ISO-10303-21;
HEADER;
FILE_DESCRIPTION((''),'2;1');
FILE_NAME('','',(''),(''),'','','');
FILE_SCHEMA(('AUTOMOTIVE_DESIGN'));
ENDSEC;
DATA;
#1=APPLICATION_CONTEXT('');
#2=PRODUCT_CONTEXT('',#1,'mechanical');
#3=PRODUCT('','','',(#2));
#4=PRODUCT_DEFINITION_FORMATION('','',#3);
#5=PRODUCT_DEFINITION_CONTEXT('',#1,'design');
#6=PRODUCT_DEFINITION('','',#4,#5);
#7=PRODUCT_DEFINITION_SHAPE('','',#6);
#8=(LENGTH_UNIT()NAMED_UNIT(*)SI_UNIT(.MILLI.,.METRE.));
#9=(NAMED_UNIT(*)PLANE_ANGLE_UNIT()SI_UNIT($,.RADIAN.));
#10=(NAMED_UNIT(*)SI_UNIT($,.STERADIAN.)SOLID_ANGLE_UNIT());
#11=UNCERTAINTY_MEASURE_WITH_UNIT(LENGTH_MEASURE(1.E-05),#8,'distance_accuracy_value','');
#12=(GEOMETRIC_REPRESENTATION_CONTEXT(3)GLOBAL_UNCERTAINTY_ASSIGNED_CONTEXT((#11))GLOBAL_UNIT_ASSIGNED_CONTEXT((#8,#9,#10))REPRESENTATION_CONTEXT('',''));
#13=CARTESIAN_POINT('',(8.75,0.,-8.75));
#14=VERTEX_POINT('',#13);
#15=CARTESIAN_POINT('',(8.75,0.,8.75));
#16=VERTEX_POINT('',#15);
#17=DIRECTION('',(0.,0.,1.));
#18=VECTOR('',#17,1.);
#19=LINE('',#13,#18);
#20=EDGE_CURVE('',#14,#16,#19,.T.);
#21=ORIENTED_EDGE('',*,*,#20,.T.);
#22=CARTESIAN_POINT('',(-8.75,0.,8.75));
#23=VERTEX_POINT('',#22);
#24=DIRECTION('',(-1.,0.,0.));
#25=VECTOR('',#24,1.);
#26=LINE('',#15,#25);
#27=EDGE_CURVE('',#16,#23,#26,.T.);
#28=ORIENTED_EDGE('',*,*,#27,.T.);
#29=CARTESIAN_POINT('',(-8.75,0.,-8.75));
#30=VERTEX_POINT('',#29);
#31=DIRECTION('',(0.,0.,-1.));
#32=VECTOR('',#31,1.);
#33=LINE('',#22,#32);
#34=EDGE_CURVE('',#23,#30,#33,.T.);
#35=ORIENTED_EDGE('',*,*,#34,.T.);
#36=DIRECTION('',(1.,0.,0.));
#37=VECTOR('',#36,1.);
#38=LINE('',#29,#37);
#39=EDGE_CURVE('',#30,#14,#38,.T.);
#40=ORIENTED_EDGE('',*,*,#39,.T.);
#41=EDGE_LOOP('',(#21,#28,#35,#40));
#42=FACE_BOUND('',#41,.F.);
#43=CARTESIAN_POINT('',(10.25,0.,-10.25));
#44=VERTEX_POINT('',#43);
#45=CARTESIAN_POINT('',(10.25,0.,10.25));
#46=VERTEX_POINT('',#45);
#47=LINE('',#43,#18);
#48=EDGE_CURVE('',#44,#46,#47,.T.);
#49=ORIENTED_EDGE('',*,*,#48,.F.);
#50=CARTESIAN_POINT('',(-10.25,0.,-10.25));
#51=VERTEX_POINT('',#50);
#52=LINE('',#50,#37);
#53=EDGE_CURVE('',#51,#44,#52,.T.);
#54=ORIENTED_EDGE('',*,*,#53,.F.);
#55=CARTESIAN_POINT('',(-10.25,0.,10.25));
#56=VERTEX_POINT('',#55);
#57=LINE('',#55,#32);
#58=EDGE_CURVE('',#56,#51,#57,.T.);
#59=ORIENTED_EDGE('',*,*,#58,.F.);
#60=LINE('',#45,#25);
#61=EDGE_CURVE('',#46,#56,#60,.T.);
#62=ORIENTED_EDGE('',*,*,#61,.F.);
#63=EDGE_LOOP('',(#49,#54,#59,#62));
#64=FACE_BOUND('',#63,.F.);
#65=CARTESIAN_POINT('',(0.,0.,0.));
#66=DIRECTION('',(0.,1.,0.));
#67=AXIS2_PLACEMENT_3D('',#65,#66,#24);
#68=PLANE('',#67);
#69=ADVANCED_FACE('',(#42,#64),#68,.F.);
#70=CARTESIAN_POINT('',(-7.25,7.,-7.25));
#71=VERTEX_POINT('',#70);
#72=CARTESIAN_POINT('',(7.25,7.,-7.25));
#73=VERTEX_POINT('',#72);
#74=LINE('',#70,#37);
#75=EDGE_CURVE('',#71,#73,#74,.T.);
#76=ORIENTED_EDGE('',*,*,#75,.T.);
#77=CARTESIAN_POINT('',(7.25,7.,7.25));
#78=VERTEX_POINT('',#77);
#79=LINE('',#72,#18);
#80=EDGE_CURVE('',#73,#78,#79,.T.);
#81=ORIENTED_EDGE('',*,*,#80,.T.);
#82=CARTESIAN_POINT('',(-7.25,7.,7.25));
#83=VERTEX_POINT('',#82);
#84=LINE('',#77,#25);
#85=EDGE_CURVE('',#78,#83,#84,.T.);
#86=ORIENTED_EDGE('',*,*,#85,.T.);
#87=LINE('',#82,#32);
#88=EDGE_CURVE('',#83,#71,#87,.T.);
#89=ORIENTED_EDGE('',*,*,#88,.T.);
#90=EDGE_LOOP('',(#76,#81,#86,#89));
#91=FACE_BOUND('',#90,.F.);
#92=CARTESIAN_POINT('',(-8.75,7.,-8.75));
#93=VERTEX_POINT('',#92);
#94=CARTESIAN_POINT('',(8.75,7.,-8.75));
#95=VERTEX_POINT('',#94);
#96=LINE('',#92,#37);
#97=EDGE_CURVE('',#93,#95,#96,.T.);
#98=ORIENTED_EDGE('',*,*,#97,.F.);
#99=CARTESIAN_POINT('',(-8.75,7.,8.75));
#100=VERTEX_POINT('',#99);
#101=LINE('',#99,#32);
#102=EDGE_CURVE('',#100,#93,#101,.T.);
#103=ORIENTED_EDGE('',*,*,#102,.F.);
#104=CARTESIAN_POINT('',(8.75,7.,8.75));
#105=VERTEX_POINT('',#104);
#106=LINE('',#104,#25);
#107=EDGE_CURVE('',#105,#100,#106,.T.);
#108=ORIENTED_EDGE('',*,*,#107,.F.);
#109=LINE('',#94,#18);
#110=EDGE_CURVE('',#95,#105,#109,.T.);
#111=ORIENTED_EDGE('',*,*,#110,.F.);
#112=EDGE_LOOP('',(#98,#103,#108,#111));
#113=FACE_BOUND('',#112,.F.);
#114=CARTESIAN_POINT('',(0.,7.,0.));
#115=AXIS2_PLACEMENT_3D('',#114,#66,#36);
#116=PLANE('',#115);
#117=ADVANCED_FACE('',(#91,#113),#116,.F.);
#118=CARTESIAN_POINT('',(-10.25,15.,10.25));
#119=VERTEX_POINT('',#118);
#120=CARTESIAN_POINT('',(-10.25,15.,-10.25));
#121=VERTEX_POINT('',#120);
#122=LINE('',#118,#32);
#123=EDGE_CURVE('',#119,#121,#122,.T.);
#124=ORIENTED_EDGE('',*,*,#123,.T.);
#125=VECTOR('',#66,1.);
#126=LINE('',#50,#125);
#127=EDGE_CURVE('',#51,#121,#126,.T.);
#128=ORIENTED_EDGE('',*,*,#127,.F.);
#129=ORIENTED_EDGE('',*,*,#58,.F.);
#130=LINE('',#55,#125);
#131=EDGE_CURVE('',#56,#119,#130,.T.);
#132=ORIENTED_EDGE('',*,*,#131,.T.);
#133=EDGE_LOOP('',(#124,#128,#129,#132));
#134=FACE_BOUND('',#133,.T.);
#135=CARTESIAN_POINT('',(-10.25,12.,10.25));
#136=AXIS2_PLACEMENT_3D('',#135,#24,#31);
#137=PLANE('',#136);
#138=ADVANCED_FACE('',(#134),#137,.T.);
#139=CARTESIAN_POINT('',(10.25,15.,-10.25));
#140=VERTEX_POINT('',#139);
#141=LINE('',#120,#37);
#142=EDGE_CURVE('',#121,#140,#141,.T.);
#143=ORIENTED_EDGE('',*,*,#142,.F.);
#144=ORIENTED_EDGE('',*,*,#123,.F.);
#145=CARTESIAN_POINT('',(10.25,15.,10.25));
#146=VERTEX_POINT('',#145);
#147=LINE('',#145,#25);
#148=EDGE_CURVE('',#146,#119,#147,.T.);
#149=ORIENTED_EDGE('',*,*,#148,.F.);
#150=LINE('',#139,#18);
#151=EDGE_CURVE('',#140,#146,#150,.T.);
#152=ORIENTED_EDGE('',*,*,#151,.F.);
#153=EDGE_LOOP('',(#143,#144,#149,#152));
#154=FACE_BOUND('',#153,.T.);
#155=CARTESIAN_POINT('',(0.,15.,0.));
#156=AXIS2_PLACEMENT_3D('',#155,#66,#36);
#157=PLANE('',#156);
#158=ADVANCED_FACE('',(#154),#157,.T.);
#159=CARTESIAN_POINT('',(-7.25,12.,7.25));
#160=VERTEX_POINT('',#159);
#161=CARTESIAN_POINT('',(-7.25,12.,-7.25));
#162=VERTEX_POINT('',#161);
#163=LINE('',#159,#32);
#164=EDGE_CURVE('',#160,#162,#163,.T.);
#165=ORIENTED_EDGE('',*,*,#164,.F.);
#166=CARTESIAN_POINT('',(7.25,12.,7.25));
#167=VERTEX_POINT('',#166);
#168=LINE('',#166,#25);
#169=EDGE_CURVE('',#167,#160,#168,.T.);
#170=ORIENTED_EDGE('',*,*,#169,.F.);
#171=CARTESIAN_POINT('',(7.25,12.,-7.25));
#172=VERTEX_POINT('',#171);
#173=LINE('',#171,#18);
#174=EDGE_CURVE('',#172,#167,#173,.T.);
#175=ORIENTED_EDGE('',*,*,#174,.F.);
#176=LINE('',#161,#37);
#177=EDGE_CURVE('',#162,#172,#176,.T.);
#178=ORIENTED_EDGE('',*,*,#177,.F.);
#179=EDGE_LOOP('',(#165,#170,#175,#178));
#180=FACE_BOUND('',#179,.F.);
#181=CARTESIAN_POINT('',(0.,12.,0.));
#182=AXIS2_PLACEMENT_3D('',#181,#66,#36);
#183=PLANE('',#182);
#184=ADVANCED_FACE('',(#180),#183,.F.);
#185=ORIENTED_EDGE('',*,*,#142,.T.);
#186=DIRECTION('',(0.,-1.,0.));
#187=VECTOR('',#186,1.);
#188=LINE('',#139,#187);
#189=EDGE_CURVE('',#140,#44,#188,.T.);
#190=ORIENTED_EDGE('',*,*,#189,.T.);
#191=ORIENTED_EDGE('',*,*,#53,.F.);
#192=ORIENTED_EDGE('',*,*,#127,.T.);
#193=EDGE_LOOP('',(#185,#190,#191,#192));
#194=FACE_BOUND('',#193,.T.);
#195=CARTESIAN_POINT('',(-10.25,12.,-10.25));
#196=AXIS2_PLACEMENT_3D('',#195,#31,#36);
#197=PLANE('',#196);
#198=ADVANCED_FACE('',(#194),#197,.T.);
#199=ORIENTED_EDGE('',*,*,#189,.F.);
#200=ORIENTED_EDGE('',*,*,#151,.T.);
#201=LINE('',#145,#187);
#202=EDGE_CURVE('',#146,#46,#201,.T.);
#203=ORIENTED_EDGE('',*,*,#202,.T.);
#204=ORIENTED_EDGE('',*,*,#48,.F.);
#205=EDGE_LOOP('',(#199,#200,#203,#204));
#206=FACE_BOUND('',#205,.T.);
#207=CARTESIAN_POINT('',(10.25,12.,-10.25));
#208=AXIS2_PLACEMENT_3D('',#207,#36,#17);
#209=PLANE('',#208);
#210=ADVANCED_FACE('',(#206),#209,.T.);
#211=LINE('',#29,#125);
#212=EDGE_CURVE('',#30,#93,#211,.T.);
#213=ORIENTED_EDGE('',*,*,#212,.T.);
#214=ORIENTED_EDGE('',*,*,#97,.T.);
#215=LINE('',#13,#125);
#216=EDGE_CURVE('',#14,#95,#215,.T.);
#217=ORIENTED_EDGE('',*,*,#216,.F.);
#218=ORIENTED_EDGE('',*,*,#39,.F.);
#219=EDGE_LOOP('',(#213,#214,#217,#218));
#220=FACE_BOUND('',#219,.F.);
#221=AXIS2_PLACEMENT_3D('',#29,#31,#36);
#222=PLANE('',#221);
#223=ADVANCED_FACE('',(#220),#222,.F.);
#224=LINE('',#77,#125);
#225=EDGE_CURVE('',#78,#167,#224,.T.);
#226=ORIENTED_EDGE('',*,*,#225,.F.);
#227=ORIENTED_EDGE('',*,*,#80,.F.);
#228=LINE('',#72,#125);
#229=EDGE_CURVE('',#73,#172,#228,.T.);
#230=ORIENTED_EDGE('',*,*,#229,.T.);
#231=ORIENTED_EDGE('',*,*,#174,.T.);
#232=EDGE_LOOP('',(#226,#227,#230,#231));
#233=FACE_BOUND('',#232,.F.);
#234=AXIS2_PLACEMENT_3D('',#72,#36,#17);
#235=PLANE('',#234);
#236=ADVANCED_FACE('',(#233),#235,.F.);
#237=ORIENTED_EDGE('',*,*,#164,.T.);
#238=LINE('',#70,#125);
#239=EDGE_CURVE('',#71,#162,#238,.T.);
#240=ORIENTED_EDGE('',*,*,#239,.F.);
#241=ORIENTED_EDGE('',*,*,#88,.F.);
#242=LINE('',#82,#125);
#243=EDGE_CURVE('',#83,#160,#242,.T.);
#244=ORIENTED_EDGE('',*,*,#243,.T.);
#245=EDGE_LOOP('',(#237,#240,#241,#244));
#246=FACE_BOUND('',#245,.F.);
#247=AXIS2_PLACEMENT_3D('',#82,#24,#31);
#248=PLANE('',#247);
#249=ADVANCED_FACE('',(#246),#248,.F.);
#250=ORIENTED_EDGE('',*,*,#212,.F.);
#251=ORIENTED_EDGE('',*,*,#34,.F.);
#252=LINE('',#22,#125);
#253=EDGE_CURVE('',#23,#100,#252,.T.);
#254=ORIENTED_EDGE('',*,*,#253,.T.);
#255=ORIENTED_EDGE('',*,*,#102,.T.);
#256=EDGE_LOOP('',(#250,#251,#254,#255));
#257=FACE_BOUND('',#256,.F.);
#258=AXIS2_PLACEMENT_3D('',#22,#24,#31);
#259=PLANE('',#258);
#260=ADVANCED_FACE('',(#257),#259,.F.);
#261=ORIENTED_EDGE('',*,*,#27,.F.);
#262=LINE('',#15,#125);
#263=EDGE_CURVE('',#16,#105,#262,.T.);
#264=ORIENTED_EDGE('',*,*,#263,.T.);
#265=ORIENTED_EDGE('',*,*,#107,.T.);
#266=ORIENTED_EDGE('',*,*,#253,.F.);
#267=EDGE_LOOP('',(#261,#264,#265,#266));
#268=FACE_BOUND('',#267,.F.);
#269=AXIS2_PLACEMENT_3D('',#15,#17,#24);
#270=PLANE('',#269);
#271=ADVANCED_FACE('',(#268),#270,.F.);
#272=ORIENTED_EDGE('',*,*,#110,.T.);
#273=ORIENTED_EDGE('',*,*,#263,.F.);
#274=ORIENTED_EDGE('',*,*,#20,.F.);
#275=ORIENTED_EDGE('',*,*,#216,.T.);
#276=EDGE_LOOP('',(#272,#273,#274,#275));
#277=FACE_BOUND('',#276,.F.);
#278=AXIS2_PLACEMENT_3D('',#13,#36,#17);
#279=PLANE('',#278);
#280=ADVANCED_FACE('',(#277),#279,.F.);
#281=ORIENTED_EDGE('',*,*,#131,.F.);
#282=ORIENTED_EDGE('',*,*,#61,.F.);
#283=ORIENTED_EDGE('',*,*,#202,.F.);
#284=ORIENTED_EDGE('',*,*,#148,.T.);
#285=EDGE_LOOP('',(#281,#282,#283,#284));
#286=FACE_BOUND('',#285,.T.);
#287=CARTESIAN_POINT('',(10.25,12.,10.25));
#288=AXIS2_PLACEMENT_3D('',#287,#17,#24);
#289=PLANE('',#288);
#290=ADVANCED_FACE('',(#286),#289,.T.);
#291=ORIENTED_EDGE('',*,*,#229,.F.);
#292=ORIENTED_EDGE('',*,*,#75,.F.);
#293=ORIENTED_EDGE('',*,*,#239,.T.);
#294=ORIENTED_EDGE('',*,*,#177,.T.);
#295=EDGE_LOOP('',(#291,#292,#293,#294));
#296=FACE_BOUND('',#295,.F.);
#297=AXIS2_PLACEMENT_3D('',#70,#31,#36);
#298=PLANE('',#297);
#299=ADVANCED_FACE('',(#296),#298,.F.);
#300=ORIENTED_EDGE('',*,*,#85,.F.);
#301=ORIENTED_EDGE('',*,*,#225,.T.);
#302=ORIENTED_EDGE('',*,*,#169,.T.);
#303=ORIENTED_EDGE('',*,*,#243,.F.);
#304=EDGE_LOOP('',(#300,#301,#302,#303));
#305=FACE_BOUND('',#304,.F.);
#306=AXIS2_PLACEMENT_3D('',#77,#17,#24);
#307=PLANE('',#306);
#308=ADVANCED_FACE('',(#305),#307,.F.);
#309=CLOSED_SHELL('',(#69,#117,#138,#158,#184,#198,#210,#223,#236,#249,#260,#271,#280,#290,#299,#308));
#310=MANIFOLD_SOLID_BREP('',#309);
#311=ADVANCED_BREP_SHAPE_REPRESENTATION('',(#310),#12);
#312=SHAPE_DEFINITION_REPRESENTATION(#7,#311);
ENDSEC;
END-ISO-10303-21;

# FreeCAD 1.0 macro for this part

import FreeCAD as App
import Part
import Sketcher

V = App.Vector


def add_polygon(sketch, points):
    """Adds a closed chain of lines whose ends are joined by coincident constraints."""
    first, n = sketch.GeometryCount, len(points)
    for a, b in zip(points, points[1:] + points[:1]):
        sketch.addGeometry(Part.LineSegment(App.Vector(*a, 0), App.Vector(*b, 0)), False)
    for i in range(n):
        sketch.addConstraint(Sketcher.Constraint("Coincident", first + i, 2, first + (i + 1) % n, 1))

doc = App.newDocument("Part")
body = doc.addObject("PartDesign::Body", "Body")

sketch1 = body.newObject("Sketcher::SketchObject", "Sketch")
sketch1.AttachmentSupport = (doc.getObject("XZ_Plane"), [""])
sketch1.MapMode = "FlatFace"
add_polygon(sketch1, [(-10, 10), (10, 10), (10, -10), (-10, -10)])
add_polygon(sketch1, [(9, -9), (9, 9), (-9, 9), (-9, -9)])
sketch1.addConstraint([
    Sketcher.Constraint("Horizontal", 0),
    Sketcher.Constraint("Vertical", 1),
    Sketcher.Constraint("Horizontal", 2),
    Sketcher.Constraint("Vertical", 3),
    Sketcher.Constraint("Vertical", 4),
    Sketcher.Constraint("Horizontal", 5),
    Sketcher.Constraint("Vertical", 6),
    Sketcher.Constraint("Horizontal", 7),
    Sketcher.Constraint("Symmetric", 0, 2, 2, 2, -1, 1),
    Sketcher.Constraint("Symmetric", 4, 2, 6, 2, -1, 1),
    Sketcher.Constraint("Equal", 2, 1),
    Sketcher.Constraint("Equal", 7, 4),
    Sketcher.Constraint("DistanceX", 0, 1, 0, 2, 20.5),
    Sketcher.Constraint("DistanceX", 4, 2, 0, 2, 1.5),
])
pad1 = body.newObject("PartDesign::Pad", "Pad")
pad1.Profile = sketch1
pad1.Length = 7
pad1.Reversed = True

sketch2 = body.newObject("Sketcher::SketchObject", "Sketch001")
sketch2.AttachmentSupport = (doc.getObject("XZ_Plane"), [""])
sketch2.MapMode = "FlatFace"
sketch2.AttachmentOffset = App.Placement(V(0, 0, -7), App.Rotation())
add_polygon(sketch2, [(-10, 10), (10, 10), (10, -10), (-10, -10)])
add_polygon(sketch2, [(7, -7), (7, 7), (-7, 7), (-7, -7)])
sketch2.addConstraint([
    Sketcher.Constraint("Horizontal", 0),
    Sketcher.Constraint("Vertical", 1),
    Sketcher.Constraint("Horizontal", 2),
    Sketcher.Constraint("Vertical", 3),
    Sketcher.Constraint("Vertical", 4),
    Sketcher.Constraint("Horizontal", 5),
    Sketcher.Constraint("Vertical", 6),
    Sketcher.Constraint("Horizontal", 7),
    Sketcher.Constraint("Symmetric", 0, 2, 2, 2, -1, 1),
    Sketcher.Constraint("Symmetric", 4, 2, 6, 2, -1, 1),
    Sketcher.Constraint("Equal", 2, 1),
    Sketcher.Constraint("Equal", 7, 4),
    Sketcher.Constraint("DistanceX", 4, 2, 0, 2, 3.0),
    Sketcher.Constraint("DistanceX", 0, 1, 0, 2, 20.5),
])
pad2 = body.newObject("PartDesign::Pad", "Pad001")
pad2.Profile = sketch2
pad2.Length = 5
pad2.Reversed = True

sketch3 = body.newObject("Sketcher::SketchObject", "Sketch002")
sketch3.AttachmentSupport = (doc.getObject("XZ_Plane"), [""])
sketch3.MapMode = "FlatFace"
sketch3.AttachmentOffset = App.Placement(V(0, 0, -12), App.Rotation())
add_polygon(sketch3, [(10, -10), (-10, -10), (-10, 10), (10, 10)])
sketch3.addConstraint([
    Sketcher.Constraint("Horizontal", 0),
    Sketcher.Constraint("Vertical", 1),
    Sketcher.Constraint("Horizontal", 2),
    Sketcher.Constraint("Vertical", 3),
    Sketcher.Constraint("Symmetric", 0, 2, 2, 2, -1, 1),
    Sketcher.Constraint("Equal", 2, 1),
    Sketcher.Constraint("DistanceX", 0, 2, 0, 1, 20.5),
])
pad3 = body.newObject("PartDesign::Pad", "Pad002")
pad3.Profile = sketch3
pad3.Length = 3
pad3.Reversed = True

doc.recompute()
